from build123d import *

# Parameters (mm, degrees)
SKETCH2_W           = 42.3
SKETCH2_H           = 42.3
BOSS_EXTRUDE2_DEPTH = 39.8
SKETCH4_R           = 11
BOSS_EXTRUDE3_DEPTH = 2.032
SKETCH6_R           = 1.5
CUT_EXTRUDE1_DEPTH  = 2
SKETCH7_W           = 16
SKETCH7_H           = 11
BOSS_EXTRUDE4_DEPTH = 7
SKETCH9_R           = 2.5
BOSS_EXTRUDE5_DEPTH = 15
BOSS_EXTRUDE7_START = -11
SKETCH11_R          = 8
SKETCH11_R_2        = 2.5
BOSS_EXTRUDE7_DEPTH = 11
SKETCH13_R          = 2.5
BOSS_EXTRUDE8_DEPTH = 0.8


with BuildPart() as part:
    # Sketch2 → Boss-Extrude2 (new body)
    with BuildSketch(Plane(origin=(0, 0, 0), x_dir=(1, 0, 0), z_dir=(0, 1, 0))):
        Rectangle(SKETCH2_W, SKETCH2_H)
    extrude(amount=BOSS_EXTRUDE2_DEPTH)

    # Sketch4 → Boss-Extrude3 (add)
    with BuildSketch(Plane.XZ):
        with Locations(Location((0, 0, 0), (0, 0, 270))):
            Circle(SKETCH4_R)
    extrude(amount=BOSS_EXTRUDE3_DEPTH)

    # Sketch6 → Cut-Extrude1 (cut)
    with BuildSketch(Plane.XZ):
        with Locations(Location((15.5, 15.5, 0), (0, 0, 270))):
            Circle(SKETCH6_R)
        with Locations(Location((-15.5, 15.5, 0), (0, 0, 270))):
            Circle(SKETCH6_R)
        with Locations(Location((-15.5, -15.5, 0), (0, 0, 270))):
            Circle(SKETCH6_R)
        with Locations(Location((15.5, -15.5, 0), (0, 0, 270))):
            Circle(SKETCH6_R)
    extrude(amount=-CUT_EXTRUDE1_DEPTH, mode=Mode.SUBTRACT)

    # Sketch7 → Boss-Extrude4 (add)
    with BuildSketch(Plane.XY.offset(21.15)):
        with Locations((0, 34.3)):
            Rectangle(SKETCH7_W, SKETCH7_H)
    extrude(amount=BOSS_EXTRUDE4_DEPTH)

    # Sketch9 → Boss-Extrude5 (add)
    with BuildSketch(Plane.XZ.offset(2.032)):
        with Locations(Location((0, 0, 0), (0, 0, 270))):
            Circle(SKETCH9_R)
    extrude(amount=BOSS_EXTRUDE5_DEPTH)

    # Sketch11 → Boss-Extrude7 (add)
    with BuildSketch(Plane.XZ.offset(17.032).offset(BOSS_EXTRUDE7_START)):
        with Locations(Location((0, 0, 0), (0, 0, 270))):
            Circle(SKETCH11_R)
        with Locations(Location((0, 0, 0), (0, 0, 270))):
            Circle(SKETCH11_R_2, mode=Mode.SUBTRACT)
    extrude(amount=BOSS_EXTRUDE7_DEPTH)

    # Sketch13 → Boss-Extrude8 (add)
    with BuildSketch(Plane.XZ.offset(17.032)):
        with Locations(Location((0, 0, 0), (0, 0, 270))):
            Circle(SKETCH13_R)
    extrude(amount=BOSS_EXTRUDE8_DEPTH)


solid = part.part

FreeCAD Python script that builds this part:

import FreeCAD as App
import Part
import Sketcher
Q = App.Units.Quantity


def add_polygon(sketch, points):
    """Adds a closed chain of lines whose ends are joined by coincident constraints."""
    first, n = sketch.GeometryCount, len(points)
    for a, b in zip(points, points[1:] + points[:1]):
        sketch.addGeometry(Part.LineSegment(App.Vector(*a, 0), App.Vector(*b, 0)), False)
    for i in range(n):
        sketch.addConstraint(Sketcher.Constraint("Coincident", first + i, 2, first + (i + 1) % n, 1))

doc = App.newDocument("Part")
body = doc.addObject("PartDesign::Body", "Body")

sketch1 = doc.addObject("Sketcher::SketchObject", "Sketch")
body.addObject(sketch1)
sketch1.AttachmentSupport = (doc.XZ_Plane, [""])
sketch1.MapMode = "FlatFace"
add_polygon(sketch1, [(-21, -21), (-21, 21), (21, 21), (21, -21)])
sketch1.addConstraint([
    Sketcher.Constraint("Vertical", 0),
    Sketcher.Constraint("Horizontal", 1),
    Sketcher.Constraint("Vertical", 2),
    Sketcher.Constraint("Horizontal", 3),
    Sketcher.Constraint("Symmetric", 0, 2, 2, 2, -1, 1),
    Sketcher.Constraint("Equal", 3, 0),
    Sketcher.Constraint("DistanceX", 1, 1, 1, 2, Q("42.3 mm")),
])
pad1 = doc.addObject("PartDesign::Pad", "Pad")
body.addObject(pad1)
pad1.Profile = sketch1
pad1.Length = 39.8
pad1.Reversed = True

sketch2 = doc.addObject("Sketcher::SketchObject", "Sketch001")
body.addObject(sketch2)
sketch2.AttachmentSupport = (doc.XZ_Plane, [""])
sketch2.MapMode = "FlatFace"
sketch2.addGeometry(Part.Circle(App.Vector(0, 0, 0), App.Vector(0, 0, 1), 11), False)
sketch2.addConstraint([
    Sketcher.Constraint("Coincident", 0, 3, -1, 1),
    Sketcher.Constraint("Diameter", 0, Q("22 mm")),
])
pad2 = doc.addObject("PartDesign::Pad", "Pad001")
body.addObject(pad2)
pad2.Profile = sketch2
pad2.Length = 2.032

sketch3 = doc.addObject("Sketcher::SketchObject", "Sketch002")
body.addObject(sketch3)
sketch3.AttachmentSupport = (doc.XZ_Plane, [""])
sketch3.MapMode = "FlatFace"
sketch3.addGeometry([
    Part.Circle(App.Vector(15.5, 15.5, 0), App.Vector(0, 0, 1), 1.5),
    Part.Circle(App.Vector(-15.5, 15.5, 0), App.Vector(0, 0, 1), 1.5),
    Part.Circle(App.Vector(-15.5, -15.5, 0), App.Vector(0, 0, 1), 1.5),
    Part.Circle(App.Vector(15.5, -15.5, 0), App.Vector(0, 0, 1), 1.5),
], False)
sketch3.addConstraint([
    Sketcher.Constraint("Equal", 0, 1),
    Sketcher.Constraint("Equal", 1, 2),
    Sketcher.Constraint("Equal", 2, 3),
    Sketcher.Constraint("Symmetric", 0, 3, 2, 3, -1, 1),
    Sketcher.Constraint("Symmetric", 1, 3, 3, 3, -1, 1),
    Sketcher.Constraint("Symmetric", 0, 3, 1, 3, -2),
    Sketcher.Constraint("Diameter", 0, Q("3 mm")),
    Sketcher.Constraint("DistanceX", 1, 3, 0, 3, Q("31 mm")),
    Sketcher.Constraint("DistanceY", 2, 3, 1, 3, Q("31 mm")),
])
pocket1 = doc.addObject("PartDesign::Pocket", "Pocket")
body.addObject(pocket1)
pocket1.Profile = sketch3
pocket1.Length = 2

sketch4 = doc.addObject("Sketcher::SketchObject", "Sketch003")
body.addObject(sketch4)
sketch4.AttachmentSupport = (doc.XY_Plane, [""])
sketch4.MapMode = "FlatFace"
sketch4.AttachmentOffset = App.Placement(App.Vector(0, 0, 21.15), App.Rotation())
add_polygon(sketch4, [(-8, 40), (-8, 29), (8, 29), (8, 40)])
sketch4.addConstraint([
    Sketcher.Constraint("Vertical", 0),
    Sketcher.Constraint("Horizontal", 1),
    Sketcher.Constraint("Vertical", 2),
    Sketcher.Constraint("Horizontal", 3),
    Sketcher.Constraint("DistanceX", 1, 1, 1, 2, Q("16 mm")),
    Sketcher.Constraint("DistanceY", 0, 2, 0, 1, Q("11 mm")),
    Sketcher.Constraint("DistanceX", 0, 2, -1, 1, Q("8 mm")),
    Sketcher.Constraint("DistanceY", -1, 1, 0, 2, Q("28.8 mm")),
])
pad3 = doc.addObject("PartDesign::Pad", "Pad002")
body.addObject(pad3)
pad3.Profile = sketch4
pad3.Length = 7

sketch5 = doc.addObject("Sketcher::SketchObject", "Sketch004")
body.addObject(sketch5)
sketch5.AttachmentSupport = (doc.XZ_Plane, [""])
sketch5.MapMode = "FlatFace"
sketch5.AttachmentOffset = App.Placement(App.Vector(0, 0, 2.032), App.Rotation())
sketch5.addGeometry(Part.Circle(App.Vector(0, 0, 0), App.Vector(0, 0, 1), 2.5), False)
sketch5.addConstraint([
    Sketcher.Constraint("Coincident", 0, 3, -1, 1),
    Sketcher.Constraint("Diameter", 0, Q("5 mm")),
])
pad4 = doc.addObject("PartDesign::Pad", "Pad003")
body.addObject(pad4)
pad4.Profile = sketch5
pad4.Length = 15

sketch6 = doc.addObject("Sketcher::SketchObject", "Sketch005")
body.addObject(sketch6)
sketch6.AttachmentSupport = (doc.XZ_Plane, [""])
sketch6.MapMode = "FlatFace"
sketch6.AttachmentOffset = App.Placement(App.Vector(0, 0, 6.032), App.Rotation())
sketch6.addGeometry([
    Part.Circle(App.Vector(0, 0, 0), App.Vector(0, 0, 1), 8),
    Part.Circle(App.Vector(0, 0, 0), App.Vector(0, 0, 1), 2.5),
], False)
sketch6.addConstraint([
    Sketcher.Constraint("Coincident", 0, 3, -1, 1),
    Sketcher.Constraint("Coincident", 1, 3, -1, 1),
    Sketcher.Constraint("Diameter", 0, Q("16 mm")),
    Sketcher.Constraint("Diameter", 1, Q("5 mm")),
])
pad5 = doc.addObject("PartDesign::Pad", "Pad004")
body.addObject(pad5)
pad5.Profile = sketch6
pad5.Length = 11

sketch7 = doc.addObject("Sketcher::SketchObject", "Sketch006")
body.addObject(sketch7)
sketch7.AttachmentSupport = (doc.XZ_Plane, [""])
sketch7.MapMode = "FlatFace"
sketch7.AttachmentOffset = App.Placement(App.Vector(0, 0, 17.032), App.Rotation())
sketch7.addGeometry(Part.Circle(App.Vector(0, 0, 0), App.Vector(0, 0, 1), 2.5), False)
sketch7.addConstraint([
    Sketcher.Constraint("Coincident", 0, 3, -1, 1),
    Sketcher.Constraint("Diameter", 0, Q("5 mm")),
])
pad6 = doc.addObject("PartDesign::Pad", "Pad005")
body.addObject(pad6)
pad6.Profile = sketch7
pad6.Length = 0.8

doc.recompute()
